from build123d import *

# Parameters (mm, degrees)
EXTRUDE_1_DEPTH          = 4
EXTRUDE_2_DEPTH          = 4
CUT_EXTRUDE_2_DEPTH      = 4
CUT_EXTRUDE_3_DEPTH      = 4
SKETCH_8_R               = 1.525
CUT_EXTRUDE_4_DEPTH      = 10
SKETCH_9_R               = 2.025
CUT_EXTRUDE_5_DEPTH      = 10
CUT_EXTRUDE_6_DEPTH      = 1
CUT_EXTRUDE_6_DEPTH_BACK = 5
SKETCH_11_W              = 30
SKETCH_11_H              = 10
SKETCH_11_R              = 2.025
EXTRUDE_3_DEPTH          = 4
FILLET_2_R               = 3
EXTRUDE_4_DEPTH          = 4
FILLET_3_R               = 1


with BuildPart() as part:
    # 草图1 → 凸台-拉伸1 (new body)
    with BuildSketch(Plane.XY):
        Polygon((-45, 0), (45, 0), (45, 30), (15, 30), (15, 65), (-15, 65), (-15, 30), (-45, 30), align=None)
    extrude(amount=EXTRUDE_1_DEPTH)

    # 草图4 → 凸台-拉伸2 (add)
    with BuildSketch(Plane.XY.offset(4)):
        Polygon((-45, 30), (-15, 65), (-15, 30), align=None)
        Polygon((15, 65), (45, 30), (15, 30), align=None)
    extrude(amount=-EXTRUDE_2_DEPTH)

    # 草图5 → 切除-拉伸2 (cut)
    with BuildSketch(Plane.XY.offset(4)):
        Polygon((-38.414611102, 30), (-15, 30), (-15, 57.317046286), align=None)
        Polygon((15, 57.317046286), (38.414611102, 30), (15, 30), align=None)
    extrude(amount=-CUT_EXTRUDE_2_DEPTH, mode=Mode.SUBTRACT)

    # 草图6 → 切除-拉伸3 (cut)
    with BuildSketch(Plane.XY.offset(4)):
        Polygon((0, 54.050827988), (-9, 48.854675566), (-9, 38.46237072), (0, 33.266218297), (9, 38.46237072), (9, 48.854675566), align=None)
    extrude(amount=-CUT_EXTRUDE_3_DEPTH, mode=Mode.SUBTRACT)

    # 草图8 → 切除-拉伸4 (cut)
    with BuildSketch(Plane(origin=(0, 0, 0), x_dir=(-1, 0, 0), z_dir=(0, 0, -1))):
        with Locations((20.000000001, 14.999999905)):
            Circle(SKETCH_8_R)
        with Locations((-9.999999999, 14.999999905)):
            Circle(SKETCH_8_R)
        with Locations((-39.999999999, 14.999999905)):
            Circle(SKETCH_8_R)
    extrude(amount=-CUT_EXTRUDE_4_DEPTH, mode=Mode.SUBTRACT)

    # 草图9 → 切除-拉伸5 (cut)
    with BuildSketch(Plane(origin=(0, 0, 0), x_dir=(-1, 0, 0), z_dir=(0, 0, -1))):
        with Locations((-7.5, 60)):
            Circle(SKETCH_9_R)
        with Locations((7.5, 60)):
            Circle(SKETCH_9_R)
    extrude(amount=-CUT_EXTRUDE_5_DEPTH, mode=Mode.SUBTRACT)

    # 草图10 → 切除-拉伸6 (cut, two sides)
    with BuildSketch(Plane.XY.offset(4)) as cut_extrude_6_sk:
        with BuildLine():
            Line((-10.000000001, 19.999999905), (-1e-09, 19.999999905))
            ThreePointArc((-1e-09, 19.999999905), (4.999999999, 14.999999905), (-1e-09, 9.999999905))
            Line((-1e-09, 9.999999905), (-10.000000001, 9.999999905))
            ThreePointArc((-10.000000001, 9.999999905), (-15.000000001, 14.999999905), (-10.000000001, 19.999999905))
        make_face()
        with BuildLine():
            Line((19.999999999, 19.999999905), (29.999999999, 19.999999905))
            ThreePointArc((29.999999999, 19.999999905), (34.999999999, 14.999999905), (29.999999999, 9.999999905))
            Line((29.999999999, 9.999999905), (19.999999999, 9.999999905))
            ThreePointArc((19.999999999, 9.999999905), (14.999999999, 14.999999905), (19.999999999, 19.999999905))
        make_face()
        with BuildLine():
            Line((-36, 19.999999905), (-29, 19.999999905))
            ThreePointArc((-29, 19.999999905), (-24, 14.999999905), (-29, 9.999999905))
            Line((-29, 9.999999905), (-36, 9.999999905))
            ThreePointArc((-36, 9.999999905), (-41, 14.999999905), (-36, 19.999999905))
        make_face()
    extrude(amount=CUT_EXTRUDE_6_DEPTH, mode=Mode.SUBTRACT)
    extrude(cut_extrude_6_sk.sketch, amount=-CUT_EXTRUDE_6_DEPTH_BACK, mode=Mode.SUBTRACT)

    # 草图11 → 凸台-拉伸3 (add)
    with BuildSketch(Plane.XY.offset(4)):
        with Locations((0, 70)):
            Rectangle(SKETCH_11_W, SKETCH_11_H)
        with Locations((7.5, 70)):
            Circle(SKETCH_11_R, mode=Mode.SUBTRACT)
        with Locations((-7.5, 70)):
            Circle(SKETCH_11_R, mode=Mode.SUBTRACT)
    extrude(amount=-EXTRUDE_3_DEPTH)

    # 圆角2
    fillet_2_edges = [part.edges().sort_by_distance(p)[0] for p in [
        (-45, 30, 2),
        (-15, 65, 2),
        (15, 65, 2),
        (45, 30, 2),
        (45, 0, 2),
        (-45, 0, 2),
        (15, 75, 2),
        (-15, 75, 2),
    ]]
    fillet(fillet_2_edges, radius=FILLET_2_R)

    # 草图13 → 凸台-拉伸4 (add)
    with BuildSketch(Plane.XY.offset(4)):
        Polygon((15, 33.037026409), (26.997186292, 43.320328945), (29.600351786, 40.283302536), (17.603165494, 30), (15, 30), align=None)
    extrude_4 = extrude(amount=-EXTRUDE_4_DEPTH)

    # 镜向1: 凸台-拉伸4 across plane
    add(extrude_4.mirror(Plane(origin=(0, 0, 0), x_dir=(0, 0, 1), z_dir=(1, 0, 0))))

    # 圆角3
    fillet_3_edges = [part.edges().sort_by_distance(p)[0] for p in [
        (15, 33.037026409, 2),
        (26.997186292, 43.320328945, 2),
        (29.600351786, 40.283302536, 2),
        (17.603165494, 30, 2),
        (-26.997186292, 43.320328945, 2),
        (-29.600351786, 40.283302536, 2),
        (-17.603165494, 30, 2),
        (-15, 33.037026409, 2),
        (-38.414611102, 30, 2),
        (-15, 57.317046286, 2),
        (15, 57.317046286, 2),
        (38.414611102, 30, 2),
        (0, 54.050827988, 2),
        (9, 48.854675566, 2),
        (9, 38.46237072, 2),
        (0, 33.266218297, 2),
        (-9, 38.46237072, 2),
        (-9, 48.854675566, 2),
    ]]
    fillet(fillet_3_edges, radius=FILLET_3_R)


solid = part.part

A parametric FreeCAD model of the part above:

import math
import FreeCAD as App
import Part
import Sketcher
Q = App.Units.Quantity


def edges_at(feature, points):
    """Names of the edges that pass closest to the given points."""
    edges = feature.Shape.Edges
    near = lambda p: min(range(len(edges)), key=lambda i: edges[i].distToShape(Part.Vertex(*p))[0])
    return sorted({f"Edge{near(p) + 1}" for p in points})

doc = App.newDocument("Part")
params = doc.addObject("Spreadsheet::Sheet", "Params")
for row, (alias, value) in enumerate([
    ("sketch1_width", "90 mm"),
    ("sketch1_height", "35 mm"),
    ("pad1_length", "4 mm"),
    ("sketch2_width", "30 mm"),
    ("sketch2_height", "35 mm"),
    ("pad2_length", "4 mm"),
    ("pocket1_length", "4 mm"),
    ("pocket2_length", "4 mm"),
    ("sketch5_diameter", "3.05 mm"),
    ("pocket3_length", "10 mm"),
    ("sketch6_diameter", "4.05 mm"),
    ("pocket4_length", "10 mm"),
    ("sketch7_radius", "5 mm"),
    ("sketch7_width", "10 mm"),
    ("sketch7_width2", "7 mm"),
    ("sketch8_diameter", "4.05 mm"),
    ("sketch8_width", "30 mm"),
    ("sketch8_height", "10 mm"),
    ("pad3_length", "4 mm"),
    ("fillet_radius", "3 mm"),
    ("sketch9_length", "4 mm"),
    ("pad4_length", "4 mm"),
    ("fillet2_radius", "1 mm"),
], start=1):
    params.set(f"A{row}", alias)
    params.set(f"B{row}", "=" + value)
    params.setAlias(f"B{row}", alias)

body = doc.addObject("PartDesign::Body", "Body")

# Sketch on XY plane
sketch1 = body.newObject("Sketcher::SketchObject", "Sketch")
sketch1.AttachmentSupport = (doc.getObject("XY_Plane"), [""])
sketch1.MapMode = "FlatFace"
sketch1.addGeometry(Part.LineSegment(App.Vector(-45, 0, 0), App.Vector(45, 0, 0)), False)
sketch1.addGeometry(Part.LineSegment(App.Vector(45, 0, 0), App.Vector(45, 30, 0)), False)
sketch1.addGeometry(Part.LineSegment(App.Vector(45, 30, 0), App.Vector(15, 30, 0)), False)
sketch1.addGeometry(Part.LineSegment(App.Vector(15, 30, 0), App.Vector(15, 65, 0)), False)
sketch1.addGeometry(Part.LineSegment(App.Vector(15, 65, 0), App.Vector(-15, 65, 0)), False)
sketch1.addGeometry(Part.LineSegment(App.Vector(-15, 65, 0), App.Vector(-15, 30, 0)), False)
sketch1.addGeometry(Part.LineSegment(App.Vector(-15, 30, 0), App.Vector(-45, 30, 0)), False)
sketch1.addGeometry(Part.LineSegment(App.Vector(-45, 30, 0), App.Vector(-45, 0, 0)), False)
sketch1.addConstraint(Sketcher.Constraint("Coincident", 0, 2, 1, 1))
sketch1.addConstraint(Sketcher.Constraint("Coincident", 1, 2, 2, 1))
sketch1.addConstraint(Sketcher.Constraint("Coincident", 2, 2, 3, 1))
sketch1.addConstraint(Sketcher.Constraint("Coincident", 3, 2, 4, 1))
sketch1.addConstraint(Sketcher.Constraint("Coincident", 4, 2, 5, 1))
sketch1.addConstraint(Sketcher.Constraint("Coincident", 5, 2, 6, 1))
sketch1.addConstraint(Sketcher.Constraint("Coincident", 6, 2, 7, 1))
sketch1.addConstraint(Sketcher.Constraint("Coincident", 7, 2, 0, 1))
sketch1.addConstraint(Sketcher.Constraint("Horizontal", 0))
sketch1.addConstraint(Sketcher.Constraint("Vertical", 1))
sketch1.addConstraint(Sketcher.Constraint("Horizontal", 2))
sketch1.addConstraint(Sketcher.Constraint("Vertical", 3))
sketch1.addConstraint(Sketcher.Constraint("Horizontal", 4))
sketch1.addConstraint(Sketcher.Constraint("Vertical", 5))
sketch1.addConstraint(Sketcher.Constraint("Horizontal", 6))
sketch1.addConstraint(Sketcher.Constraint("Vertical", 7))
sketch1.addConstraint(Sketcher.Constraint("Symmetric", 0, 2, 7, 2, -1, 1))
sketch1.addConstraint(Sketcher.Constraint("Symmetric", 2, 2, 5, 2, -2))
sketch1.addConstraint(Sketcher.Constraint("Equal", 2, 4))
sketch1.addConstraint(Sketcher.Constraint("Equal", 6, 1))
sketch1.addConstraint(Sketcher.Constraint("DistanceX", 0, 1, 0, 2, 90.0))
sketch1.addConstraint(Sketcher.Constraint("DistanceY", 3, 1, 3, 2, 35.0))
sketch1.setExpression("Constraints[20]", "Params.sketch1_width")
sketch1.setExpression("Constraints[21]", "Params.sketch1_height")
pad1 = body.newObject("PartDesign::Pad", "Pad")
pad1.Profile = sketch1
pad1.setExpression("Length", "Params.pad1_length")

# Sketch on XY plane
sketch2 = body.newObject("Sketcher::SketchObject", "Sketch001")
sketch2.AttachmentSupport = (doc.getObject("XY_Plane"), [""])
sketch2.MapMode = "FlatFace"
sketch2.AttachmentOffset = App.Placement(App.Vector(0, 0, 4), App.Rotation())
sketch2.addGeometry(Part.LineSegment(App.Vector(-15, 65, 0), App.Vector(-45, 30, 0)), False)
sketch2.addGeometry(Part.LineSegment(App.Vector(-45, 30, 0), App.Vector(-15, 30, 0)), False)
sketch2.addGeometry(Part.LineSegment(App.Vector(-15, 30, 0), App.Vector(-15, 65, 0)), False)
sketch2.addGeometry(Part.LineSegment(App.Vector(45, 30, 0), App.Vector(15, 65, 0)), False)
sketch2.addGeometry(Part.LineSegment(App.Vector(15, 65, 0), App.Vector(15, 30, 0)), False)
sketch2.addGeometry(Part.LineSegment(App.Vector(15, 30, 0), App.Vector(45, 30, 0)), False)
sketch2.addConstraint(Sketcher.Constraint("Coincident", 0, 2, 1, 1))
sketch2.addConstraint(Sketcher.Constraint("Coincident", 1, 2, 2, 1))
sketch2.addConstraint(Sketcher.Constraint("Coincident", 2, 2, 0, 1))
sketch2.addConstraint(Sketcher.Constraint("Coincident", 3, 2, 4, 1))
sketch2.addConstraint(Sketcher.Constraint("Coincident", 4, 2, 5, 1))
sketch2.addConstraint(Sketcher.Constraint("Coincident", 5, 2, 3, 1))
sketch2.addConstraint(Sketcher.Constraint("Horizontal", 1))
sketch2.addConstraint(Sketcher.Constraint("Vertical", 2))
sketch2.addConstraint(Sketcher.Constraint("Vertical", 4))
sketch2.addConstraint(Sketcher.Constraint("Horizontal", 5))
sketch2.addConstraint(Sketcher.Constraint("Symmetric", 2, 2, 3, 2, -2))
sketch2.addConstraint(Sketcher.Constraint("Symmetric", 0, 2, 5, 2, -2))
sketch2.addConstraint(Sketcher.Constraint("DistanceX", 1, 1, 1, 2, 30.0))
sketch2.addConstraint(Sketcher.Constraint("DistanceY", 2, 1, 2, 2, 35.0))
sketch2.addConstraint(Sketcher.Constraint("DistanceX", 0, 2, -1, 1, 45.0))
sketch2.addConstraint(Sketcher.Constraint("DistanceY", -1, 1, 0, 2, 30.0))
sketch2.setExpression("Constraints[12]", "Params.sketch2_width")
sketch2.setExpression("Constraints[13]", "Params.sketch2_height")
pad2 = body.newObject("PartDesign::Pad", "Pad001")
pad2.Profile = sketch2
pad2.setExpression("Length", "Params.pad2_length")
pad2.Reversed = True

# Sketch on XY plane
sketch3 = body.newObject("Sketcher::SketchObject", "Sketch002")
sketch3.AttachmentSupport = (doc.getObject("XY_Plane"), [""])
sketch3.MapMode = "FlatFace"
sketch3.AttachmentOffset = App.Placement(App.Vector(0, 0, 4), App.Rotation())
sketch3.addGeometry(Part.LineSegment(App.Vector(-38, 30, 0), App.Vector(-15, 30, 0)), False)
sketch3.addGeometry(Part.LineSegment(App.Vector(-15, 30, 0), App.Vector(-15, 57, 0)), False)
sketch3.addGeometry(Part.LineSegment(App.Vector(-15, 57, 0), App.Vector(-38, 30, 0)), False)
sketch3.addGeometry(Part.LineSegment(App.Vector(38, 30, 0), App.Vector(15, 57, 0)), False)
sketch3.addGeometry(Part.LineSegment(App.Vector(15, 57, 0), App.Vector(15, 30, 0)), False)
sketch3.addGeometry(Part.LineSegment(App.Vector(15, 30, 0), App.Vector(38, 30, 0)), False)
sketch3.addConstraint(Sketcher.Constraint("Coincident", 0, 2, 1, 1))
sketch3.addConstraint(Sketcher.Constraint("Coincident", 1, 2, 2, 1))
sketch3.addConstraint(Sketcher.Constraint("Coincident", 2, 2, 0, 1))
sketch3.addConstraint(Sketcher.Constraint("Coincident", 3, 2, 4, 1))
sketch3.addConstraint(Sketcher.Constraint("Coincident", 4, 2, 5, 1))
sketch3.addConstraint(Sketcher.Constraint("Coincident", 5, 2, 3, 1))
sketch3.addConstraint(Sketcher.Constraint("Horizontal", 0))
sketch3.addConstraint(Sketcher.Constraint("Vertical", 1))
sketch3.addConstraint(Sketcher.Constraint("Vertical", 4))
sketch3.addConstraint(Sketcher.Constraint("Horizontal", 5))
sketch3.addConstraint(Sketcher.Constraint("Symmetric", 1, 2, 3, 2, -2))
sketch3.addConstraint(Sketcher.Constraint("Symmetric", 2, 2, 5, 2, -2))
sketch3.addConstraint(Sketcher.Constraint("DistanceX", 0, 2, -1, 1, 15.0))
sketch3.addConstraint(Sketcher.Constraint("DistanceY", -1, 1, 0, 2, 30.0))
sketch3.addConstraint(Sketcher.Constraint("DistanceX", 0, 1, 0, 2, 23.414611))
sketch3.addConstraint(Sketcher.Constraint("DistanceY", 1, 1, 1, 2, 27.317046))
pocket1 = body.newObject("PartDesign::Pocket", "Pocket")
pocket1.Profile = sketch3
pocket1.setExpression("Length", "Params.pocket1_length")

# Sketch on XY plane
sketch4 = body.newObject("Sketcher::SketchObject", "Sketch003")
sketch4.AttachmentSupport = (doc.getObject("XY_Plane"), [""])
sketch4.MapMode = "FlatFace"
sketch4.AttachmentOffset = App.Placement(App.Vector(0, 0, 4), App.Rotation())
sketch4.addGeometry(Part.LineSegment(App.Vector(0, 54, 0), App.Vector(-9, 49, 0)), False)
sketch4.addGeometry(Part.LineSegment(App.Vector(-9, 49, 0), App.Vector(-9, 38, 0)), False)
sketch4.addGeometry(Part.LineSegment(App.Vector(-9, 38, 0), App.Vector(0, 33, 0)), False)
sketch4.addGeometry(Part.LineSegment(App.Vector(0, 33, 0), App.Vector(9, 38, 0)), False)
sketch4.addGeometry(Part.LineSegment(App.Vector(9, 38, 0), App.Vector(9, 49, 0)), False)
sketch4.addGeometry(Part.LineSegment(App.Vector(9, 49, 0), App.Vector(0, 54, 0)), False)
sketch4.addConstraint(Sketcher.Constraint("Coincident", 0, 2, 1, 1))
sketch4.addConstraint(Sketcher.Constraint("Coincident", 1, 2, 2, 1))
sketch4.addConstraint(Sketcher.Constraint("Coincident", 2, 2, 3, 1))
sketch4.addConstraint(Sketcher.Constraint("Coincident", 3, 2, 4, 1))
sketch4.addConstraint(Sketcher.Constraint("Coincident", 4, 2, 5, 1))
sketch4.addConstraint(Sketcher.Constraint("Coincident", 5, 2, 0, 1))
sketch4.addConstraint(Sketcher.Constraint("Vertical", 1))
sketch4.addConstraint(Sketcher.Constraint("Vertical", 4))
sketch4.addConstraint(Sketcher.Constraint("Symmetric", 1, 2, 3, 2, -2))
sketch4.addConstraint(Sketcher.Constraint("PointOnObject", 2, 2, -2))
sketch4.addConstraint(Sketcher.Constraint("PointOnObject", 5, 2, -2))
sketch4.addConstraint(Sketcher.Constraint("Parallel", 0, 3))
sketch4.addConstraint(Sketcher.Constraint("Parallel", 2, 5))
sketch4.addConstraint(Sketcher.Constraint("Angle", 0, Q("-150 deg")))
sketch4.addConstraint(Sketcher.Constraint("DistanceX", 0, 2, -1, 1, 9.0))
sketch4.addConstraint(Sketcher.Constraint("DistanceY", 1, 2, 1, 1, 10.392305))
sketch4.addConstraint(Sketcher.Constraint("DistanceY", -1, 1, 1, 2, 38.462371))
pocket2 = body.newObject("PartDesign::Pocket", "Pocket001")
pocket2.Profile = sketch4
pocket2.setExpression("Length", "Params.pocket2_length")

# Sketch on XY plane
sketch5 = body.newObject("Sketcher::SketchObject", "Sketch004")
sketch5.AttachmentSupport = (doc.getObject("XY_Plane"), [""])
sketch5.MapMode = "FlatFace"
sketch5.addGeometry(Part.Circle(App.Vector(-20, 15, 0), App.Vector(0, 0, 1), 1.5), False)
sketch5.addGeometry(Part.Circle(App.Vector(10, 15, 0), App.Vector(0, 0, 1), 1.5), False)
sketch5.addGeometry(Part.Circle(App.Vector(40, 15, 0), App.Vector(0, 0, 1), 1.5), False)
sketch5.addConstraint(Sketcher.Constraint("Equal", 0, 1))
sketch5.addConstraint(Sketcher.Constraint("Equal", 1, 2))
sketch5.addConstraint(Sketcher.Constraint("Horizontal", 0, 3, 1, 3))
sketch5.addConstraint(Sketcher.Constraint("Horizontal", 1, 3, 2, 3))
sketch5.addConstraint(Sketcher.Constraint("Diameter", 0, 3.05))
sketch5.addConstraint(Sketcher.Constraint("DistanceX", 0, 3, -1, 1, 20.0))
sketch5.addConstraint(Sketcher.Constraint("DistanceY", -1, 1, 0, 3, 15.0))
sketch5.addConstraint(Sketcher.Constraint("DistanceX", -1, 1, 1, 3, 10.0))
sketch5.addConstraint(Sketcher.Constraint("DistanceX", -1, 1, 2, 3, 40.0))
sketch5.setExpression("Constraints[4]", "Params.sketch5_diameter")
pocket3 = body.newObject("PartDesign::Pocket", "Pocket002")
pocket3.Profile = sketch5
pocket3.setExpression("Length", "Params.pocket3_length")
pocket3.Reversed = True

# Sketch on XY plane
sketch6 = body.newObject("Sketcher::SketchObject", "Sketch005")
sketch6.AttachmentSupport = (doc.getObject("XY_Plane"), [""])
sketch6.MapMode = "FlatFace"
sketch6.addGeometry(Part.Circle(App.Vector(7.5, 60, 0), App.Vector(0, 0, 1), 2), False)
sketch6.addGeometry(Part.Circle(App.Vector(-7.5, 60, 0), App.Vector(0, 0, 1), 2), False)
sketch6.addConstraint(Sketcher.Constraint("Equal", 0, 1))
sketch6.addConstraint(Sketcher.Constraint("Symmetric", 0, 3, 1, 3, -2))
sketch6.addConstraint(Sketcher.Constraint("Diameter", 0, 4.05))
sketch6.addConstraint(Sketcher.Constraint("DistanceY", -1, 1, 0, 3, 60.0))
sketch6.addConstraint(Sketcher.Constraint("DistanceX", 1, 3, 0, 3, 15.0))
sketch6.setExpression("Constraints[2]", "Params.sketch6_diameter")
pocket4 = body.newObject("PartDesign::Pocket", "Pocket003")
pocket4.Profile = sketch6
pocket4.setExpression("Length", "Params.pocket4_length")
pocket4.Reversed = True

# Sketch on XY plane
sketch7 = body.newObject("Sketcher::SketchObject", "Sketch006")
sketch7.AttachmentSupport = (doc.getObject("XY_Plane"), [""])
sketch7.MapMode = "FlatFace"
sketch7.AttachmentOffset = App.Placement(App.Vector(0, 0, 4), App.Rotation())
sketch7.addGeometry(Part.LineSegment(App.Vector(0, 20, 0), App.Vector(-10, 20, 0)), False)
sketch7.addGeometry(Part.ArcOfCircle(Part.Circle(App.Vector(-10, 15, 0), App.Vector(0, 0, 1), 5), math.radians(90), math.radians(270)), False)
sketch7.addGeometry(Part.LineSegment(App.Vector(-10, 10, 0), App.Vector(0, 10, 0)), False)
sketch7.addGeometry(Part.ArcOfCircle(Part.Circle(App.Vector(0, 15, 0), App.Vector(0, 0, 1), 5), math.radians(-90), math.radians(90)), False)
sketch7.addGeometry(Part.LineSegment(App.Vector(30, 20, 0), App.Vector(20, 20, 0)), False)
sketch7.addGeometry(Part.ArcOfCircle(Part.Circle(App.Vector(20, 15, 0), App.Vector(0, 0, 1), 5), math.radians(90), math.radians(270)), False)
sketch7.addGeometry(Part.LineSegment(App.Vector(20, 10, 0), App.Vector(30, 10, 0)), False)
sketch7.addGeometry(Part.ArcOfCircle(Part.Circle(App.Vector(30, 15, 0), App.Vector(0, 0, 1), 5), math.radians(-90), math.radians(90)), False)
sketch7.addGeometry(Part.LineSegment(App.Vector(-29, 20, 0), App.Vector(-36, 20, 0)), False)
sketch7.addGeometry(Part.ArcOfCircle(Part.Circle(App.Vector(-36, 15, 0), App.Vector(0, 0, 1), 5), math.radians(90), math.radians(270)), False)
sketch7.addGeometry(Part.LineSegment(App.Vector(-36, 10, 0), App.Vector(-29, 10, 0)), False)
sketch7.addGeometry(Part.ArcOfCircle(Part.Circle(App.Vector(-29, 15, 0), App.Vector(0, 0, 1), 5), math.radians(-90), math.radians(90)), False)
sketch7.addConstraint(Sketcher.Constraint("Tangent", 0, 2, 1, 1))
sketch7.addConstraint(Sketcher.Constraint("Tangent", 1, 2, 2, 1))
sketch7.addConstraint(Sketcher.Constraint("Tangent", 2, 2, 3, 1))
sketch7.addConstraint(Sketcher.Constraint("Tangent", 3, 2, 0, 1))
sketch7.addConstraint(Sketcher.Constraint("Tangent", 4, 2, 5, 1))
sketch7.addConstraint(Sketcher.Constraint("Tangent", 5, 2, 6, 1))
sketch7.addConstraint(Sketcher.Constraint("Tangent", 6, 2, 7, 1))
sketch7.addConstraint(Sketcher.Constraint("Tangent", 7, 2, 4, 1))
sketch7.addConstraint(Sketcher.Constraint("Tangent", 8, 2, 9, 1))
sketch7.addConstraint(Sketcher.Constraint("Tangent", 9, 2, 10, 1))
sketch7.addConstraint(Sketcher.Constraint("Tangent", 10, 2, 11, 1))
sketch7.addConstraint(Sketcher.Constraint("Tangent", 11, 2, 8, 1))
sketch7.addConstraint(Sketcher.Constraint("Horizontal", 0))
sketch7.addConstraint(Sketcher.Constraint("Horizontal", 2))
sketch7.addConstraint(Sketcher.Constraint("Horizontal", 4))
sketch7.addConstraint(Sketcher.Constraint("Horizontal", 6))
sketch7.addConstraint(Sketcher.Constraint("Horizontal", 8))
sketch7.addConstraint(Sketcher.Constraint("Horizontal", 10))
sketch7.addConstraint(Sketcher.Constraint("Equal", 3, 5))
sketch7.addConstraint(Sketcher.Constraint("Equal", 7, 9))
sketch7.addConstraint(Sketcher.Constraint("PointOnObject", 3, 3, -2))
sketch7.addConstraint(Sketcher.Constraint("Horizontal", 3, 3, 5, 3))
sketch7.addConstraint(Sketcher.Constraint("Horizontal", 7, 3, 9, 3))
sketch7.addConstraint(Sketcher.Constraint("Equal", 2, 4))
sketch7.addConstraint(Sketcher.Constraint("Radius", 1, 5.0))
sketch7.addConstraint(Sketcher.Constraint("DistanceX", 0, 2, 0, 1, 10.0))
sketch7.addConstraint(Sketcher.Constraint("DistanceX", 8, 2, 8, 1, 7.0))
sketch7.addConstraint(Sketcher.Constraint("DistanceY", -1, 1, 1, 3, 15.0))
sketch7.addConstraint(Sketcher.Constraint("DistanceX", -1, 1, 5, 3, 20.0))
sketch7.addConstraint(Sketcher.Constraint("DistanceX", 9, 3, -1, 1, 36.0))
sketch7.setExpression("Constraints[24]", "Params.sketch7_radius")
sketch7.setExpression("Constraints[25]", "Params.sketch7_width")
sketch7.setExpression("Constraints[26]", "Params.sketch7_width2")
pocket5 = body.newObject("PartDesign::Pocket", "Pocket004")
pocket5.Profile = sketch7
pocket5.Type = "ThroughAll"
pocket5.Midplane = True

# Sketch on XY plane
sketch8 = body.newObject("Sketcher::SketchObject", "Sketch007")
sketch8.AttachmentSupport = (doc.getObject("XY_Plane"), [""])
sketch8.MapMode = "FlatFace"
sketch8.AttachmentOffset = App.Placement(App.Vector(0, 0, 4), App.Rotation())
sketch8.addGeometry(Part.LineSegment(App.Vector(-15, 75, 0), App.Vector(-15, 65, 0)), False)
sketch8.addGeometry(Part.LineSegment(App.Vector(-15, 65, 0), App.Vector(15, 65, 0)), False)
sketch8.addGeometry(Part.LineSegment(App.Vector(15, 65, 0), App.Vector(15, 75, 0)), False)
sketch8.addGeometry(Part.LineSegment(App.Vector(15, 75, 0), App.Vector(-15, 75, 0)), False)
sketch8.addGeometry(Part.Circle(App.Vector(-7.5, 70, 0), App.Vector(0, 0, 1), 2), False)
sketch8.addGeometry(Part.Circle(App.Vector(7.5, 70, 0), App.Vector(0, 0, 1), 2), False)
sketch8.addConstraint(Sketcher.Constraint("Coincident", 0, 2, 1, 1))
sketch8.addConstraint(Sketcher.Constraint("Coincident", 1, 2, 2, 1))
sketch8.addConstraint(Sketcher.Constraint("Coincident", 2, 2, 3, 1))
sketch8.addConstraint(Sketcher.Constraint("Coincident", 3, 2, 0, 1))
sketch8.addConstraint(Sketcher.Constraint("Vertical", 0))
sketch8.addConstraint(Sketcher.Constraint("Horizontal", 1))
sketch8.addConstraint(Sketcher.Constraint("Vertical", 2))
sketch8.addConstraint(Sketcher.Constraint("Horizontal", 3))
sketch8.addConstraint(Sketcher.Constraint("Equal", 4, 5))
sketch8.addConstraint(Sketcher.Constraint("Symmetric", 4, 3, 5, 3, -2))
sketch8.addConstraint(Sketcher.Constraint("Diameter", 4, 4.05))
sketch8.addConstraint(Sketcher.Constraint("DistanceX", 1, 1, 1, 2, 30.0))
sketch8.addConstraint(Sketcher.Constraint("DistanceY", 0, 2, 0, 1, 10.0))
sketch8.addConstraint(Sketcher.Constraint("DistanceY", -1, 1, 4, 3, 70.0))
sketch8.addConstraint(Sketcher.Constraint("DistanceX", 0, 2, -1, 1, 15.0))
sketch8.addConstraint(Sketcher.Constraint("DistanceY", -1, 1, 0, 2, 65.0))
sketch8.addConstraint(Sketcher.Constraint("DistanceX", 4, 3, 5, 3, 15.0))
sketch8.setExpression("Constraints[10]", "Params.sketch8_diameter")
sketch8.setExpression("Constraints[11]", "Params.sketch8_width")
sketch8.setExpression("Constraints[12]", "Params.sketch8_height")
pad3 = body.newObject("PartDesign::Pad", "Pad002")
pad3.Profile = sketch8
pad3.setExpression("Length", "Params.pad3_length")
pad3.Reversed = True
doc.recompute()

fillet = body.newObject("PartDesign::Fillet", "Fillet")
fillet.Base = (pad3, edges_at(pad3, [
    (-45, 30, 2),
    (-15, 65, 2),
    (15, 65, 2),
    (45, 30, 2),
    (45, 0, 2),
    (-45, 0, 2),
    (15, 75, 2),
    (-15, 75, 2),
]))
fillet.setExpression("Radius", "Params.fillet_radius")

# Sketch on XY plane
sketch9 = body.newObject("Sketcher::SketchObject", "Sketch008")
sketch9.AttachmentSupport = (doc.getObject("XY_Plane"), [""])
sketch9.MapMode = "FlatFace"
sketch9.AttachmentOffset = App.Placement(App.Vector(0, 0, 4), App.Rotation())
sketch9.addGeometry(Part.LineSegment(App.Vector(27, 43.3, 0), App.Vector(15, 33, 0)), False)
sketch9.addGeometry(Part.LineSegment(App.Vector(15, 33, 0), App.Vector(15, 30, 0)), False)
sketch9.addGeometry(Part.LineSegment(App.Vector(15, 30, 0), App.Vector(17.6, 30, 0)), False)
sketch9.addGeometry(Part.LineSegment(App.Vector(17.6, 30, 0), App.Vector(29.6, 40.3, 0)), False)
sketch9.addGeometry(Part.LineSegment(App.Vector(29.6, 40.3, 0), App.Vector(27, 43.3, 0)), False)
sketch9.addConstraint(Sketcher.Constraint("Coincident", 0, 2, 1, 1))
sketch9.addConstraint(Sketcher.Constraint("Coincident", 1, 2, 2, 1))
sketch9.addConstraint(Sketcher.Constraint("Coincident", 2, 2, 3, 1))
sketch9.addConstraint(Sketcher.Constraint("Coincident", 3, 2, 4, 1))
sketch9.addConstraint(Sketcher.Constraint("Coincident", 4, 2, 0, 1))
sketch9.addConstraint(Sketcher.Constraint("Vertical", 1))
sketch9.addConstraint(Sketcher.Constraint("Horizontal", 2))
sketch9.addConstraint(Sketcher.Constraint("Parallel", 0, 3))
sketch9.addConstraint(Sketcher.Constraint("Perpendicular", 3, 4))
sketch9.addConstraint(Sketcher.Constraint("Equal", 0, 3))
sketch9.addConstraint(Sketcher.Constraint("Distance", 4, 4.0))
sketch9.addConstraint(Sketcher.Constraint("DistanceX", -1, 1, 0, 2, 15.0))
sketch9.addConstraint(Sketcher.Constraint("DistanceY", -1, 1, 1, 2, 30.0))
sketch9.addConstraint(Sketcher.Constraint("DistanceX", 2, 1, 2, 2, 2.603165))
sketch9.addConstraint(Sketcher.Constraint("DistanceX", -1, 1, 3, 2, 29.600352))
sketch9.setExpression("Constraints[10]", "Params.sketch9_length")
pad4 = body.newObject("PartDesign::Pad", "Pad003")
pad4.Profile = sketch9
pad4.setExpression("Length", "Params.pad4_length")
pad4.Reversed = True
doc.recompute()

mirrored = body.newObject("PartDesign::Mirrored", "Mirrored")
mirrored.Originals = [pad4]
mirrored.MirrorPlane = (doc.getObject("YZ_Plane"), [""])
body.Tip = mirrored
doc.recompute()

fillet2 = body.newObject("PartDesign::Fillet", "Fillet001")
fillet2.Base = (mirrored, edges_at(mirrored, [
    (15, 33.037, 2),
    (26.997, 43.32, 2),
    (29.6, 40.283, 2),
    (17.603, 30, 2),
    (-26.997, 43.32, 2),
    (-29.6, 40.283, 2),
    (-17.603, 30, 2),
    (-15, 33.037, 2),
    (-38.415, 30, 2),
    (-15, 57.317, 2),
    (15, 57.317, 2),
    (38.415, 30, 2),
    (0, 54.051, 2),
    (9, 48.855, 2),
    (9, 38.462, 2),
    (0, 33.266, 2),
    (-9, 38.462, 2),
    (-9, 48.855, 2),
]))
fillet2.setExpression("Radius", "Params.fillet2_radius")

doc.recompute()
